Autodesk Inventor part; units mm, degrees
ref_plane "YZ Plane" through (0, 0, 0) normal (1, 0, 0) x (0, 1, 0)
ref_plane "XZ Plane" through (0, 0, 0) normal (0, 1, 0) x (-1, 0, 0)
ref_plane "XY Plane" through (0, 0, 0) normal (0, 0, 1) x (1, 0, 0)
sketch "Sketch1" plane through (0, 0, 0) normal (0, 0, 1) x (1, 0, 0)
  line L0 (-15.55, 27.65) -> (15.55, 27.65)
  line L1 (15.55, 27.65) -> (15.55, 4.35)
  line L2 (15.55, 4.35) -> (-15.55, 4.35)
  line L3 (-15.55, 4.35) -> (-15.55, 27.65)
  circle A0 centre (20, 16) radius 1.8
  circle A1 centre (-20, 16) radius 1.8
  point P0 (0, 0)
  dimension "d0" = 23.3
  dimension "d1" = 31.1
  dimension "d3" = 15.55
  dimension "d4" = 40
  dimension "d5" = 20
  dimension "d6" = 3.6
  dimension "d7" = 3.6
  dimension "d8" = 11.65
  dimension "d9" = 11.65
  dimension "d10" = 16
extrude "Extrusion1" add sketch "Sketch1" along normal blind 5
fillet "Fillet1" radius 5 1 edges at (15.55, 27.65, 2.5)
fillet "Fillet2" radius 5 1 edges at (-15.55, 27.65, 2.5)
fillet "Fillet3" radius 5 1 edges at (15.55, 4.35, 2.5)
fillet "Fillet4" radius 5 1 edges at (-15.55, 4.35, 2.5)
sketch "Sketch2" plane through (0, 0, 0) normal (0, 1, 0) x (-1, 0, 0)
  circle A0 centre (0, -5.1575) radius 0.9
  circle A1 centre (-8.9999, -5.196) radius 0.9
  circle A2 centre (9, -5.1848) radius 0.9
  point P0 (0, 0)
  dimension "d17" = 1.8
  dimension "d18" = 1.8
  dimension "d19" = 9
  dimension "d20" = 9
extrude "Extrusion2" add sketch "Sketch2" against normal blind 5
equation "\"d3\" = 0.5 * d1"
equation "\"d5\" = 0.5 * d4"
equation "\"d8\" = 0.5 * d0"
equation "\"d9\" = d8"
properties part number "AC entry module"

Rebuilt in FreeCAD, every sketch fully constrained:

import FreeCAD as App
import Part
import Sketcher
Q = App.Units.Quantity


def edges_at(feature, points):
    """Names of the edges that pass closest to the given points."""
    edges = feature.Shape.Edges
    near = lambda p: min(range(len(edges)), key=lambda i: edges[i].distToShape(Part.Vertex(*p))[0])
    return sorted({f"Edge{near(p) + 1}" for p in points})


def add_polygon(sketch, points):
    """Adds a closed chain of lines whose ends are joined by coincident constraints."""
    first, n = sketch.GeometryCount, len(points)
    for a, b in zip(points, points[1:] + points[:1]):
        sketch.addGeometry(Part.LineSegment(App.Vector(*a, 0), App.Vector(*b, 0)), False)
    for i in range(n):
        sketch.addConstraint(Sketcher.Constraint("Coincident", first + i, 2, first + (i + 1) % n, 1))

doc = App.newDocument("Part")
body = doc.addObject("PartDesign::Body", "Body")
body.AllowCompound = True

# Sketch on XY plane
sketch1 = doc.addObject("Sketcher::SketchObject", "Sketch")
body.addObject(sketch1)
sketch1.AttachmentSupport = (doc.XY_Plane, [""])
sketch1.MapMode = "FlatFace"
add_polygon(sketch1, [(15.6, 27.6), (-15.6, 27.6), (-15.6, 4.3), (15.6, 4.3)])  # lines 0-3
sketch1.addGeometry(Part.Circle(App.Vector(20, 16, 0), App.Vector(0, 0, 1), 1.8), False)  # 4
sketch1.addGeometry(Part.Circle(App.Vector(-20, 16, 0), App.Vector(0, 0, 1), 1.8), False)  # 5
sketch1.addConstraint([
    Sketcher.Constraint("Horizontal", 0),
    Sketcher.Constraint("Vertical", 1),
    Sketcher.Constraint("Horizontal", 2),
    Sketcher.Constraint("Vertical", 3),
    Sketcher.Constraint("Equal", 4, 5),
    Sketcher.Constraint("Symmetric", 4, 3, 5, 3, -2),
    Sketcher.Constraint("Diameter", 4, Q("3.6 mm")),
    Sketcher.Constraint("DistanceX", 0, 2, 0, 1, Q("31.1 mm")),
    Sketcher.Constraint("DistanceY", 1, 2, 1, 1, Q("23.3 mm")),
    Sketcher.Constraint("DistanceX", -1, 1, 4, 3, Q("20 mm")),
    Sketcher.Constraint("DistanceY", -1, 1, 4, 3, Q("16 mm")),
    Sketcher.Constraint("DistanceX", 0, 2, -1, 1, Q("15.55 mm")),
    Sketcher.Constraint("DistanceY", 5, 3, 0, 2, Q("11.65 mm")),
])
pad1 = doc.addObject("PartDesign::Pad", "Pad")
body.addObject(pad1)
pad1.Profile = sketch1
pad1.Length = 5
doc.recompute()

fillet = doc.addObject("PartDesign::Fillet", "Fillet")
body.addObject(fillet)
fillet.Base = (pad1, edges_at(pad1, [(15.55, 27.65, 2.5)]))
fillet.Radius = 5
doc.recompute()

fillet2 = doc.addObject("PartDesign::Fillet", "Fillet001")
body.addObject(fillet2)
fillet2.Base = (fillet, edges_at(fillet, [(-15.55, 27.65, 2.5)]))
fillet2.Radius = 5
doc.recompute()

fillet3 = doc.addObject("PartDesign::Fillet", "Fillet002")
body.addObject(fillet3)
fillet3.Base = (fillet2, edges_at(fillet2, [(15.55, 4.35, 2.5)]))
fillet3.Radius = 5
doc.recompute()

fillet4 = doc.addObject("PartDesign::Fillet", "Fillet003")
body.addObject(fillet4)
fillet4.Base = (fillet3, edges_at(fillet3, [(-15.55, 4.35, 2.5)]))
fillet4.Radius = 5

# Sketch on XZ plane
sketch2 = doc.addObject("Sketcher::SketchObject", "Sketch001")
body.addObject(sketch2)
sketch2.AttachmentSupport = (doc.XZ_Plane, [""])
sketch2.MapMode = "FlatFace"
sketch2.addGeometry([
    Part.Circle(App.Vector(0, -5.2, 0), App.Vector(0, 0, 1), 0.9),
    Part.Circle(App.Vector(9, -5.2, 0), App.Vector(0, 0, 1), 0.9),
    Part.Circle(App.Vector(-9, -5.2, 0), App.Vector(0, 0, 1), 0.9),
], False)
sketch2.addConstraint([
    Sketcher.Constraint("Equal", 0, 1),
    Sketcher.Constraint("Equal", 1, 2),
    Sketcher.Constraint("PointOnObject", 0, 3, -2),
    Sketcher.Constraint("Diameter", 0, Q("1.8 mm")),
    Sketcher.Constraint("DistanceX", -1, 1, 1, 3, Q("9 mm")),
    Sketcher.Constraint("DistanceX", 2, 3, -1, 1, Q("9 mm")),
    Sketcher.Constraint("DistanceY", 1, 3, -1, 1, Q("5.196 mm")),
    Sketcher.Constraint("DistanceY", 0, 3, -1, 1, Q("5.1575 mm")),
    Sketcher.Constraint("DistanceY", 2, 3, -1, 1, Q("5.1848 mm")),
])
pad2 = doc.addObject("PartDesign::Pad", "Pad001")
body.addObject(pad2)
pad2.Profile = sketch2
pad2.Length = 5

doc.recompute()
